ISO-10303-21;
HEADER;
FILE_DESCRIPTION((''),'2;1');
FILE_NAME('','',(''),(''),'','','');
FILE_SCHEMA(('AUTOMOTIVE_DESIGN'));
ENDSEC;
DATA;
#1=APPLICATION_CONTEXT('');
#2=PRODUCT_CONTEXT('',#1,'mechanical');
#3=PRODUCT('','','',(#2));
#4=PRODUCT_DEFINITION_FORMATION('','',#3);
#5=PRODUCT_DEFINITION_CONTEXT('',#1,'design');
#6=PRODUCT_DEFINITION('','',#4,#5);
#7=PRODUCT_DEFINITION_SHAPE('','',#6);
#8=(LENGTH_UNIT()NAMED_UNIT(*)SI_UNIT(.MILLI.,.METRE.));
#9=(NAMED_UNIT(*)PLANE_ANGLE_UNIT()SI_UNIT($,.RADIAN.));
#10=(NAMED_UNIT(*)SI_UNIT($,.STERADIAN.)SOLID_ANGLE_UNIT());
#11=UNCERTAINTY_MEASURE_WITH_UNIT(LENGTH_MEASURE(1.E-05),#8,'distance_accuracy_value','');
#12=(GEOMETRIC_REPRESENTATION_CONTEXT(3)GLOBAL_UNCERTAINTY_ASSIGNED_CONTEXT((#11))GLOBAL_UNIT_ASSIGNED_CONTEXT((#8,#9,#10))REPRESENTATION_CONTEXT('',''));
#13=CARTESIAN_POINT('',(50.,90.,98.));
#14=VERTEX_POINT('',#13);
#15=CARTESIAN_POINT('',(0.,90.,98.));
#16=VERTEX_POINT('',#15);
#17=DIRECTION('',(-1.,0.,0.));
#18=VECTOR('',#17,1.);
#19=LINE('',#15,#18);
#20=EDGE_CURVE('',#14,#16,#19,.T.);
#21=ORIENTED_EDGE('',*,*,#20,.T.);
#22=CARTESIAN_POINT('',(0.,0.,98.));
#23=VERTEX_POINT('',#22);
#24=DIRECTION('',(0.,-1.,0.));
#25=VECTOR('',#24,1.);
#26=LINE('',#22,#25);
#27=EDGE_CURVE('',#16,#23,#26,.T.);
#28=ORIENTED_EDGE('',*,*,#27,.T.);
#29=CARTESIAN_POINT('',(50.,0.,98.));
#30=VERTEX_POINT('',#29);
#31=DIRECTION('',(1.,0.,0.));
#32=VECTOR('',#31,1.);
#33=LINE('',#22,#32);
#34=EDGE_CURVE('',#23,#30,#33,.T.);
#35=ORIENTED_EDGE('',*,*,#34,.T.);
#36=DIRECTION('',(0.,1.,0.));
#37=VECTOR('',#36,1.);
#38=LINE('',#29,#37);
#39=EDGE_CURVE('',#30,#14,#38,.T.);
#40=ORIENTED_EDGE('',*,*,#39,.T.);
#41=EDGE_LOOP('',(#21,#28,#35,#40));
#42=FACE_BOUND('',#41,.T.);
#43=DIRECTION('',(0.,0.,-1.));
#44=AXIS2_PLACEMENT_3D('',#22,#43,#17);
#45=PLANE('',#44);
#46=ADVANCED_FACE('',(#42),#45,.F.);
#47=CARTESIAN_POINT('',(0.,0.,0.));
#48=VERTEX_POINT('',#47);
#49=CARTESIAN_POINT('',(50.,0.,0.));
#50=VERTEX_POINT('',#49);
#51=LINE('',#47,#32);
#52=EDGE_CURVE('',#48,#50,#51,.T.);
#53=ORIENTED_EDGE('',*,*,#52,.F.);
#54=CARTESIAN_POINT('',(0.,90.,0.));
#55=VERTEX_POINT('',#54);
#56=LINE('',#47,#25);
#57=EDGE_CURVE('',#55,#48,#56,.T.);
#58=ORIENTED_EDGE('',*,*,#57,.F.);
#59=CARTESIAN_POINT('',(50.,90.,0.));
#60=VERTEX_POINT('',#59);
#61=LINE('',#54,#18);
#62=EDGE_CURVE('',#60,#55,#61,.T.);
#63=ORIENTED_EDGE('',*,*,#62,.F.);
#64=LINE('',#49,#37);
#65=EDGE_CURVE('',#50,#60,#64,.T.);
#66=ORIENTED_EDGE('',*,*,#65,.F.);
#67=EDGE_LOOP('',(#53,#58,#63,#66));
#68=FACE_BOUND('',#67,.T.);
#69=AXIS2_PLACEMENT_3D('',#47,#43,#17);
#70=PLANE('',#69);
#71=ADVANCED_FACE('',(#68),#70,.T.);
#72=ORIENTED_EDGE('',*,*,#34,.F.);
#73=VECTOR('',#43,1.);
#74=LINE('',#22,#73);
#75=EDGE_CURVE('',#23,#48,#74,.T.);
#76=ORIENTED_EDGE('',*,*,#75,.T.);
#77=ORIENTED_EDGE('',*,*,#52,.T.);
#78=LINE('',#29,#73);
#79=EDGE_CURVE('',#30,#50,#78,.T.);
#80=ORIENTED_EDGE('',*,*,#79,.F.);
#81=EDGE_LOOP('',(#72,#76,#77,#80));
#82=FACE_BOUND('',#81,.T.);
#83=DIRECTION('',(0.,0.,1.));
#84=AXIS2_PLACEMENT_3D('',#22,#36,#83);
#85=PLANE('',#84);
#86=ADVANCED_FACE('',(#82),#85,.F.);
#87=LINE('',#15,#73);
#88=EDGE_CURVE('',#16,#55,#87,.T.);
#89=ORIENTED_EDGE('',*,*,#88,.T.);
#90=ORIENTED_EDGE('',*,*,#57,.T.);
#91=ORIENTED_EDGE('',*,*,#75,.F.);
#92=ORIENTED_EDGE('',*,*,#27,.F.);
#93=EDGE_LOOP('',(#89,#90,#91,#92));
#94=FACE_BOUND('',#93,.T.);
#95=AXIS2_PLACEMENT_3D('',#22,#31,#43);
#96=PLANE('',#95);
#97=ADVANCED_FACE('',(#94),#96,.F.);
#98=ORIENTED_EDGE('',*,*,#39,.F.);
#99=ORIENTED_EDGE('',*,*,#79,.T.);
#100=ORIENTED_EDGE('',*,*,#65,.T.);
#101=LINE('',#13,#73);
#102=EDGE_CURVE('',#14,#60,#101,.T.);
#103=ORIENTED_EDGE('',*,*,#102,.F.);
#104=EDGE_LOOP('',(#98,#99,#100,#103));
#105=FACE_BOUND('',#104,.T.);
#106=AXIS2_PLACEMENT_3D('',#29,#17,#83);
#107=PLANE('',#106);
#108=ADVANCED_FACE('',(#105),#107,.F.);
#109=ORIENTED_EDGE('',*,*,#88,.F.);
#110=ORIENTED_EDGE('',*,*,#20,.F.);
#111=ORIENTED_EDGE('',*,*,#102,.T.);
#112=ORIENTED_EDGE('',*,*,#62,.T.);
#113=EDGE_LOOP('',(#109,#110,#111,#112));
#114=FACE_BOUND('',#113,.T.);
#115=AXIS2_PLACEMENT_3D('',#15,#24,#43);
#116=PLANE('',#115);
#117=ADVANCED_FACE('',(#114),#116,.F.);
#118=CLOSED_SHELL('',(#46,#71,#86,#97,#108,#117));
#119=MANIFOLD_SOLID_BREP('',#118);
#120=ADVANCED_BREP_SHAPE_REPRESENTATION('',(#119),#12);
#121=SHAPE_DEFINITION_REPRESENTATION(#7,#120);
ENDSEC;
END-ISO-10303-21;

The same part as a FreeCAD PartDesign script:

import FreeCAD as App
import Part
import Sketcher

V = App.Vector
Q = App.Units.Quantity

doc = App.newDocument("Part")
body = doc.addObject("PartDesign::Body", "Body")

# Sketch on XY plane
sketch1 = body.newObject("Sketcher::SketchObject", "Sketch")
sketch1.AttachmentSupport = (doc.getObject("XY_Plane"), [""])
sketch1.MapMode = "FlatFace"
sketch1.addGeometry([
    Part.LineSegment(V(0, 90, 0), V(0, 0, 0)),
    Part.LineSegment(V(0, 0, 0), V(50, 0, 0)),
    Part.LineSegment(V(50, 0, 0), V(50, 90, 0)),
    Part.LineSegment(V(50, 90, 0), V(0, 90, 0)),
], False)
sketch1.addConstraint([
    Sketcher.Constraint("Coincident", 0, 2, 1, 1),
    Sketcher.Constraint("Coincident", 1, 2, 2, 1),
    Sketcher.Constraint("Coincident", 2, 2, 3, 1),
    Sketcher.Constraint("Coincident", 3, 2, 0, 1),
    Sketcher.Constraint("Vertical", 0),
    Sketcher.Constraint("Horizontal", 1),
    Sketcher.Constraint("Vertical", 2),
    Sketcher.Constraint("Horizontal", 3),
    Sketcher.Constraint("Coincident", 0, 2, -1, 1),
    Sketcher.Constraint("DistanceX", 1, 1, 1, 2, Q("50 mm")),
    Sketcher.Constraint("DistanceY", 0, 2, 0, 1, Q("90 mm")),
])
pad1 = body.newObject("PartDesign::Pad", "Pad")
pad1.Profile = sketch1
pad1.Length = 98

doc.recompute()
